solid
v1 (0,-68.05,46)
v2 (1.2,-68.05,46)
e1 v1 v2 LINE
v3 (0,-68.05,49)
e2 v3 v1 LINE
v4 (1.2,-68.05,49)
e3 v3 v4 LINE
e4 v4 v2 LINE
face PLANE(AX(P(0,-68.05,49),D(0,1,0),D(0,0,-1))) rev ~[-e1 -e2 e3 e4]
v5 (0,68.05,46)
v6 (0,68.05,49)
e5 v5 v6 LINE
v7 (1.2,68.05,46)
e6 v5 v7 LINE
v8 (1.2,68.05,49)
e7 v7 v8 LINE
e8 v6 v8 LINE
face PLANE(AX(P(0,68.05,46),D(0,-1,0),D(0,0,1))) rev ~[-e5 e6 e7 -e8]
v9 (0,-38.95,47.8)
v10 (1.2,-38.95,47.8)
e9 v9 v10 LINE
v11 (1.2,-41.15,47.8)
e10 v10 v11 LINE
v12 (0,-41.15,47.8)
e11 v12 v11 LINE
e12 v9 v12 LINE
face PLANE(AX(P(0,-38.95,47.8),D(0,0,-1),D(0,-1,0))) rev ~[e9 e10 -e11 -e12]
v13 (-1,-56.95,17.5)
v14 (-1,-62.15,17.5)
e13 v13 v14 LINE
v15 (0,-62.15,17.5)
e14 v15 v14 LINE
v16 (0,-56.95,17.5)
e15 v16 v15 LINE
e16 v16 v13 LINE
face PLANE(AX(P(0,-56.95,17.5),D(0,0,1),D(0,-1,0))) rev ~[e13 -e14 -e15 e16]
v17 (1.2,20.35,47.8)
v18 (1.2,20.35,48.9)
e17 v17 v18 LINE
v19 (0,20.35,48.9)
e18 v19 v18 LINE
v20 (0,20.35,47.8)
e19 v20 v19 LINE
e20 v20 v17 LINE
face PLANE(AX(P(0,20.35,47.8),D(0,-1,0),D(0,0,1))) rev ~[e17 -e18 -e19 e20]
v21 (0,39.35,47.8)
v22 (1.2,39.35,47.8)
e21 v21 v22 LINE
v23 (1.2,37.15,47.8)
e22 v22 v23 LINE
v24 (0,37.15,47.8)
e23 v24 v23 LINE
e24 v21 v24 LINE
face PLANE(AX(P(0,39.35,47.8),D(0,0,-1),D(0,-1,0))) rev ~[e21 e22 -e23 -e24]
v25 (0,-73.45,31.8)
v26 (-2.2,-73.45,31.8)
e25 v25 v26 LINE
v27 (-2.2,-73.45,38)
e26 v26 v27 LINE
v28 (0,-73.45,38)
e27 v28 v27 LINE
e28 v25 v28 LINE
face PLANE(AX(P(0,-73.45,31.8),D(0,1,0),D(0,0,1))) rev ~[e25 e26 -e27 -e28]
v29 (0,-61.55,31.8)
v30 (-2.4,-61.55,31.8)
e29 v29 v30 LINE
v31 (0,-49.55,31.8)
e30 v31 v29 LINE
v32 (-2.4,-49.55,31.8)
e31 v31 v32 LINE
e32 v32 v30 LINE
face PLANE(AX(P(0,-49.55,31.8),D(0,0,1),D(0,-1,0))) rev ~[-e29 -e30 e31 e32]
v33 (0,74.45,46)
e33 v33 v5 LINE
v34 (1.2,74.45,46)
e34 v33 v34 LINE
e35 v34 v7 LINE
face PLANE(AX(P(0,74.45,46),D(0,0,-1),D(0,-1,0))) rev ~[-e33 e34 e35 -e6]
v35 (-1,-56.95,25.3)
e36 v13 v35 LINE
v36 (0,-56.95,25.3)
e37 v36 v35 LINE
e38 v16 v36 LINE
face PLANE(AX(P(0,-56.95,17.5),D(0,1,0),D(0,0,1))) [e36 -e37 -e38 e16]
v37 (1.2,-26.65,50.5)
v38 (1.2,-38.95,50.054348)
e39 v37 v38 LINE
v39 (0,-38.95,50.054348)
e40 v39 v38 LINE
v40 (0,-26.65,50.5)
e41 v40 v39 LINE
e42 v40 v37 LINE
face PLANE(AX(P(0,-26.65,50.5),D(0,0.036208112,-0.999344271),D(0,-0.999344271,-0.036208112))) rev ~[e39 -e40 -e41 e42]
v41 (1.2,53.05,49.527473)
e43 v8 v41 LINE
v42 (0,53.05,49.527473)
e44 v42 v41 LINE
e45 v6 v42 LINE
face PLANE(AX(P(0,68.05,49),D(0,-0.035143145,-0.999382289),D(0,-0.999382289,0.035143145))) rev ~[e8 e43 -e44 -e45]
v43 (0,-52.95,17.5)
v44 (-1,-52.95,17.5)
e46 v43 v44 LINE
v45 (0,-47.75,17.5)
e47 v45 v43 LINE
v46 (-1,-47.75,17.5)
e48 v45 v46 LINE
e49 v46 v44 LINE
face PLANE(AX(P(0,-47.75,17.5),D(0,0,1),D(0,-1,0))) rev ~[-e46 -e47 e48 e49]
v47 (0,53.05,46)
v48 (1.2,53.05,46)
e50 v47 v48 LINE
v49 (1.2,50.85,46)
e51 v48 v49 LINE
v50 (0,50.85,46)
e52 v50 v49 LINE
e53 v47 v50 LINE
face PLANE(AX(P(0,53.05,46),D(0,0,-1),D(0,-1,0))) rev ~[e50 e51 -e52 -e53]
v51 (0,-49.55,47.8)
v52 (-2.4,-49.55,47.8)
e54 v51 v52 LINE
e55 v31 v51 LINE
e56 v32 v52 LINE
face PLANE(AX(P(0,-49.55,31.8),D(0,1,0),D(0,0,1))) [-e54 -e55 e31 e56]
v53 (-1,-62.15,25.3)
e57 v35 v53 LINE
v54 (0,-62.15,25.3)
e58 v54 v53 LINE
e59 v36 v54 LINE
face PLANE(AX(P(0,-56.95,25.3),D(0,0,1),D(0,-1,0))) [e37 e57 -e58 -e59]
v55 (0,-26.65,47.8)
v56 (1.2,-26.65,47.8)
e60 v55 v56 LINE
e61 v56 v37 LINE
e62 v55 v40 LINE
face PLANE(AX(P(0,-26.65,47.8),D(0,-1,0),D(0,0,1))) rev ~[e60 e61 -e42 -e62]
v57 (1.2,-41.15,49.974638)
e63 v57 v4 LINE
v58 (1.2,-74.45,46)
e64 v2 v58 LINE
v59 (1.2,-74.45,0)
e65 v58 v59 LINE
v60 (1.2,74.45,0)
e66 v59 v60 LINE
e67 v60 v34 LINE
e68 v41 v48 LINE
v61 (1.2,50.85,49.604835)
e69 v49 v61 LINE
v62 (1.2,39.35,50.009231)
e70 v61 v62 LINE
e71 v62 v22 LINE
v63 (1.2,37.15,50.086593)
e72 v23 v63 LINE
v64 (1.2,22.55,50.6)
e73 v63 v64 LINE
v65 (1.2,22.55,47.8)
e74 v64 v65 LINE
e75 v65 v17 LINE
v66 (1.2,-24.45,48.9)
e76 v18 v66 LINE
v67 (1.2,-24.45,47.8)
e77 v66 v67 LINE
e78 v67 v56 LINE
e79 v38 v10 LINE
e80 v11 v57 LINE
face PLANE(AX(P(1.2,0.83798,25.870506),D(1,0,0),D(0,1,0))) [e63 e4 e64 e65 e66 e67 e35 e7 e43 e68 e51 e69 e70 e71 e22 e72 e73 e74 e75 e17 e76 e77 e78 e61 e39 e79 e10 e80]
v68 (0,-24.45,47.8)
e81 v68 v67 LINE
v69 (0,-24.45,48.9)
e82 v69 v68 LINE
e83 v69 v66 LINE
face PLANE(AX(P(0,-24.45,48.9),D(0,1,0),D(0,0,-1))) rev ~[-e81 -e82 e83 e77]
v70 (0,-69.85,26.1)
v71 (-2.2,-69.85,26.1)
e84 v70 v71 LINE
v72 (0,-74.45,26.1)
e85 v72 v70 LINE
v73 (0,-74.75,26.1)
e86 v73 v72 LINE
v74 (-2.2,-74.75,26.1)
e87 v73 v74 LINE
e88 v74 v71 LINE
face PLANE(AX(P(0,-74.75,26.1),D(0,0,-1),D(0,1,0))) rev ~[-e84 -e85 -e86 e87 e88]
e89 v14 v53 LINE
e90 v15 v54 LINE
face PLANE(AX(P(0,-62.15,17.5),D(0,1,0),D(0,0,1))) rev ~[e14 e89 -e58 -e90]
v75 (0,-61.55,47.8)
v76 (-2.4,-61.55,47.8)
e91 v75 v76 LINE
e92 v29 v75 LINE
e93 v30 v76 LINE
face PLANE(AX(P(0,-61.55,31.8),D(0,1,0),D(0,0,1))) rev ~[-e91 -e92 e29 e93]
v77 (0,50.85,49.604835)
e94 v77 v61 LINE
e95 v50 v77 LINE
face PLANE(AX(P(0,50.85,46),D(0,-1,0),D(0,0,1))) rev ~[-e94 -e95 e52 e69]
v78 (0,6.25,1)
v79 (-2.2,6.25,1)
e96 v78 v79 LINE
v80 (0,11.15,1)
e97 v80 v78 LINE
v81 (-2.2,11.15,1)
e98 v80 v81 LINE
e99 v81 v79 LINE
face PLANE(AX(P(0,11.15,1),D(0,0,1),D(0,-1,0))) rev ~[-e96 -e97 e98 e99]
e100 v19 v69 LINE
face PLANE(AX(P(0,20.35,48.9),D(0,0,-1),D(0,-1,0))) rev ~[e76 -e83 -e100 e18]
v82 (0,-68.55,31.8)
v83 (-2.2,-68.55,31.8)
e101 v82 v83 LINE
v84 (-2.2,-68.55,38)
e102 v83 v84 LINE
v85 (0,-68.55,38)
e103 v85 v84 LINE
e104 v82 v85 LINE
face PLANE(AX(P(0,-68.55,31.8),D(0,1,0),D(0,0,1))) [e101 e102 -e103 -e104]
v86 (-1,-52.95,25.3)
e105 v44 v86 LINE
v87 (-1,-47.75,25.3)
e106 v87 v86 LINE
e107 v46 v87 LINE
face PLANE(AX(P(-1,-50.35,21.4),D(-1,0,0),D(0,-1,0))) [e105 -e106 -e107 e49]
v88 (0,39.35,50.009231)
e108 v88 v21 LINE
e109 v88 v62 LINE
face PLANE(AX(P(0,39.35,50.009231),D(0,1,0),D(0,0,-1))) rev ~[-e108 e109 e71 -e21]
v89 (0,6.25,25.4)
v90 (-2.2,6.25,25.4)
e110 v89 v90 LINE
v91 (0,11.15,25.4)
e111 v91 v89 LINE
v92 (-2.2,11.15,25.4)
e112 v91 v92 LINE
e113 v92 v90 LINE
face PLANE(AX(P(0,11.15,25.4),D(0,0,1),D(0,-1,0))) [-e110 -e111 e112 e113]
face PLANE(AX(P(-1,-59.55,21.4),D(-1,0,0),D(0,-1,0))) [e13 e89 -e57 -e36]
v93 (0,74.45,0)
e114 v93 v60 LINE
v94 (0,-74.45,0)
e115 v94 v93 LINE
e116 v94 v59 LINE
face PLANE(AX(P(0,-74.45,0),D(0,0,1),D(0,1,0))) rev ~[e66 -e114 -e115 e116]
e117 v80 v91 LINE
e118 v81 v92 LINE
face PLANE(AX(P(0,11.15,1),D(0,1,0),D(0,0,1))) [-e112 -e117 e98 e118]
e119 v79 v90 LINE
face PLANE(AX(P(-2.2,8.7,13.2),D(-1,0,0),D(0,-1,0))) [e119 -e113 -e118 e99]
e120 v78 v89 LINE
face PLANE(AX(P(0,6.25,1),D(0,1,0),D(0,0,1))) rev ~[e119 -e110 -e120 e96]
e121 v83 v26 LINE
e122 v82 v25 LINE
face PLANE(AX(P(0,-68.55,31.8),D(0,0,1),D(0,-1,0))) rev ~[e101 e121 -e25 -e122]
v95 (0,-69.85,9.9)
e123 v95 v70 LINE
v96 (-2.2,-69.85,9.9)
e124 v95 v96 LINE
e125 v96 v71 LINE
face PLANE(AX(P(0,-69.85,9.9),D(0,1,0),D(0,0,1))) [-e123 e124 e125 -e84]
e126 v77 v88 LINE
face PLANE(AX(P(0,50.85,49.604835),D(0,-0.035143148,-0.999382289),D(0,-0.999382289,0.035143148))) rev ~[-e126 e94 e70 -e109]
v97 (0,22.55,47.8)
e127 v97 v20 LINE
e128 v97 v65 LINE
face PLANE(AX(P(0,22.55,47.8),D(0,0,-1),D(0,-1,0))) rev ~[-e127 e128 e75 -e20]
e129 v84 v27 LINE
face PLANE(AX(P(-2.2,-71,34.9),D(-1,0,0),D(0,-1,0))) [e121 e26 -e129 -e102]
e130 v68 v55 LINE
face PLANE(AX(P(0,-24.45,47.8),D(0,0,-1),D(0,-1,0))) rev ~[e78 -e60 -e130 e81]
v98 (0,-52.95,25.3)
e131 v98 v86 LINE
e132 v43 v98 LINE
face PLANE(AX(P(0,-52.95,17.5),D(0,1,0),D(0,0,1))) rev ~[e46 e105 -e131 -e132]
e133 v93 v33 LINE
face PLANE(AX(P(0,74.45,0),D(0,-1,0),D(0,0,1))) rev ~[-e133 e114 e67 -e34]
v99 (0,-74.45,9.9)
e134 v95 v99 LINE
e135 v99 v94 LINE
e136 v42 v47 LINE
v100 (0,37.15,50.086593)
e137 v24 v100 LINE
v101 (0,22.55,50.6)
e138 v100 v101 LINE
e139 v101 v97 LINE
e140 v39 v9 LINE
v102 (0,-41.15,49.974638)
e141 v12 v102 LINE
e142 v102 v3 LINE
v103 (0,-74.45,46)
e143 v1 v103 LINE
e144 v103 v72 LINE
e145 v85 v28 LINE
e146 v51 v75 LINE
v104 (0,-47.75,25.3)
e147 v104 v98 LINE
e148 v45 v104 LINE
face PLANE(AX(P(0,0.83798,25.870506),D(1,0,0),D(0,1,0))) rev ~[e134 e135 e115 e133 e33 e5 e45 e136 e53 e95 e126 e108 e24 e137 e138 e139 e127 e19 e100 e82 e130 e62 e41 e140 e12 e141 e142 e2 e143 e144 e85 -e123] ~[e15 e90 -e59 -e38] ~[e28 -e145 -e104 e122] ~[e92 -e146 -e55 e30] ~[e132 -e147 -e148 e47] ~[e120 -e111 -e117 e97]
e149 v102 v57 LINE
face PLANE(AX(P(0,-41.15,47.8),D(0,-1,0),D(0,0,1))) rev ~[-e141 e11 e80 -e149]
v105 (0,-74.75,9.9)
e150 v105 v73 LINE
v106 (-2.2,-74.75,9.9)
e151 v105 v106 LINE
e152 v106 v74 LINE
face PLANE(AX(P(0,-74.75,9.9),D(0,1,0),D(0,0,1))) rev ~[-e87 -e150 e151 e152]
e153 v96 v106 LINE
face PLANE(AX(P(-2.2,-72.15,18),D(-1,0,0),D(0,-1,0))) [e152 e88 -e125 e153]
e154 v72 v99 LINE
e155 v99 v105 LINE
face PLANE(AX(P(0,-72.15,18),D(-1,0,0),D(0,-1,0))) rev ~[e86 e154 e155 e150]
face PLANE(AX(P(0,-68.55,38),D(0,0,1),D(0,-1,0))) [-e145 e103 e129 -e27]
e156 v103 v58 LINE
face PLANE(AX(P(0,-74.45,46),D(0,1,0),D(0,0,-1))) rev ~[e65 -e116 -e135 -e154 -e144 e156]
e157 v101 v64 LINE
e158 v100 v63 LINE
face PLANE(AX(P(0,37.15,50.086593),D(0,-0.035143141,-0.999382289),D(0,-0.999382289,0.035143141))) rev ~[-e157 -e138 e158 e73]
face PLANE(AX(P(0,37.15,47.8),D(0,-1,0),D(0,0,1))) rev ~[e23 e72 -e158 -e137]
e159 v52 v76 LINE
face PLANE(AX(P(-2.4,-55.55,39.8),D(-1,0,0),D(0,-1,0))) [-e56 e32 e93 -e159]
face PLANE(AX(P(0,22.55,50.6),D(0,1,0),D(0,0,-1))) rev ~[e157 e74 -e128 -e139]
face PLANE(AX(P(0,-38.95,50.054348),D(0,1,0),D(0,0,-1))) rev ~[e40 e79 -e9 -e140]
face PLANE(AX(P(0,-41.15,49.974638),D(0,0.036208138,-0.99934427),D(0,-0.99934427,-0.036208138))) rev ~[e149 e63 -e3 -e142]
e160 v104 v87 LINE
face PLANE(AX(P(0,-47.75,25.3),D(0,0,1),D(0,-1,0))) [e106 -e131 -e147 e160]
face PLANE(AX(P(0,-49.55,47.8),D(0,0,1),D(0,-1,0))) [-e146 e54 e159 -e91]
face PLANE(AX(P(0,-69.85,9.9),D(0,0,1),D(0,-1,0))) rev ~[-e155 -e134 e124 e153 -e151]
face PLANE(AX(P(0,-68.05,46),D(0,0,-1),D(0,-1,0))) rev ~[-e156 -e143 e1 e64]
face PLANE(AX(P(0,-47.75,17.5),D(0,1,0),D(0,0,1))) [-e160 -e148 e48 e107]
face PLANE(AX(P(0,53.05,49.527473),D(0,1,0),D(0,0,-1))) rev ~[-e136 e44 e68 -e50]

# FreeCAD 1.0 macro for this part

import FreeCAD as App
import Part
import Sketcher
from FreeCAD import Vector


def add_polygon(sketch, points):
    """Adds a closed chain of lines whose ends are joined by coincident constraints."""
    first, n = sketch.GeometryCount, len(points)
    for a, b in zip(points, points[1:] + points[:1]):
        sketch.addGeometry(Part.LineSegment(App.Vector(*a, 0), App.Vector(*b, 0)), False)
    for i in range(n):
        sketch.addConstraint(Sketcher.Constraint("Coincident", first + i, 2, first + (i + 1) % n, 1))

doc = App.newDocument("Part")
body = doc.addObject("PartDesign::Body", "Body")

# Sketch on YZ plane
sketch1 = doc.addObject("Sketcher::SketchObject", "Sketch")
body.addObject(sketch1)
sketch1.AttachmentSupport = (doc.YZ_Plane, [""])
sketch1.MapMode = "FlatFace"
add_polygon(sketch1, [(74.5, 0), (74.5, 46), (68, 46), (68, 49), (53, 49.5), (53, 46), (50.9, 46), (50.9, 49.6), (39.4, 50), (39.4, 47.8), (37.1, 47.8), (37.1, 50.1), (22.6, 50.6), (22.6, 47.8), (20.4, 47.8), (20.4, 48.9), (-24.4, 48.9), (-24.4, 47.8), (-26.6, 47.8), (-26.6, 50.5), (-39, 50.1), (-39, 47.8), (-41.1, 47.8), (-41.1, 50), (-68, 49), (-68, 46), (-74.5, 46), (-74.5, 0)])  # lines 0-27
sketch1.addConstraint([
    Sketcher.Constraint("Vertical", 0),
    Sketcher.Constraint("Horizontal", 1),
    Sketcher.Constraint("Vertical", 2),
    Sketcher.Constraint("Vertical", 4),
    Sketcher.Constraint("Horizontal", 5),
    Sketcher.Constraint("Vertical", 6),
    Sketcher.Constraint("Vertical", 8),
    Sketcher.Constraint("Horizontal", 9),
    Sketcher.Constraint("Vertical", 10),
    Sketcher.Constraint("Vertical", 12),
    Sketcher.Constraint("Horizontal", 13),
    Sketcher.Constraint("Vertical", 14),
    Sketcher.Constraint("Horizontal", 15),
    Sketcher.Constraint("Vertical", 16),
    Sketcher.Constraint("Horizontal", 17),
    Sketcher.Constraint("Vertical", 18),
    Sketcher.Constraint("Vertical", 20),
    Sketcher.Constraint("Horizontal", 21),
    Sketcher.Constraint("Vertical", 22),
    Sketcher.Constraint("Vertical", 24),
    Sketcher.Constraint("Horizontal", 25),
    Sketcher.Constraint("Vertical", 26),
    Sketcher.Constraint("Horizontal", 27),
    Sketcher.Constraint("Symmetric", 26, 2, 27, 2, -1, 1),
    Sketcher.Constraint("Symmetric", 2, 2, 23, 2, -2),
    Sketcher.Constraint("Parallel", 3, 7),
    Sketcher.Constraint("Parallel", 7, 11),
    Sketcher.Constraint("Parallel", 19, 23),
    Sketcher.Constraint("Horizontal", 1, 2, 4, 2),
    Sketcher.Constraint("Horizontal", 9, 2, 12, 2),
    Sketcher.Constraint("Horizontal", 13, 2, 16, 2),
    Sketcher.Constraint("Horizontal", 17, 2, 20, 2),
    Sketcher.Constraint("Horizontal", 5, 2, 24, 2),
    Sketcher.Constraint("Equal", 5, 9),
    Sketcher.Constraint("Equal", 9, 13),
    Sketcher.Constraint("Equal", 13, 17),
    Sketcher.Constraint("Equal", 17, 21),
    Sketcher.Constraint("DistanceY", 0, 1, 0, 2, 46.0),
    Sketcher.Constraint("DistanceY", 2, 1, 2, 2, 3.0),
    Sketcher.Constraint("DistanceX", 1, 2, 1, 1, 6.4),
    Sketcher.Constraint("DistanceX", 5, 2, 5, 1, 2.2),
    Sketcher.Constraint("DistanceX", 15, 2, 15, 1, 44.8),
    Sketcher.Constraint("DistanceX", 27, 1, 27, 2, 148.9),
    Sketcher.Constraint("DistanceY", 12, 2, 12, 1, 2.8),
    Sketcher.Constraint("DistanceY", 14, 1, 14, 2, 1.1),
    Sketcher.Constraint("DistanceY", 18, 1, 18, 2, 2.7),
    Sketcher.Constraint("DistanceX", 3, 2, 2, 2, 15.0),
    Sketcher.Constraint("DistanceX", 13, 2, 8, 2, 19.0),
    Sketcher.Constraint("DistanceY", -1, 1, 8, 2, 47.8),
    Sketcher.Constraint("DistanceX", 7, 2, 6, 2, 11.5),
    Sketcher.Constraint("DistanceX", 19, 2, 18, 2, 12.3),
    Sketcher.Constraint("DistanceY", 8, 2, 8, 1, 2.209231),
    Sketcher.Constraint("DistanceY", 20, 2, 20, 1, 2.254348),
    Sketcher.Constraint("Distance", 3, 15.009271),
])
pad1 = doc.addObject("PartDesign::Pad", "Pad")
body.addObject(pad1)
pad1.Profile = sketch1
pad1.Length = 1.2

# Sketch on YZ plane
sketch2 = doc.addObject("Sketcher::SketchObject", "Sketch001")
body.addObject(sketch2)
sketch2.AttachmentSupport = (doc.YZ_Plane, [""])
sketch2.MapMode = "FlatFace"
add_polygon(sketch2, [(-68.5, 38), (-68.5, 31.8), (-73.5, 31.8), (-73.5, 38)])  # lines 0-3
add_polygon(sketch2, [(-69.8, 26.1), (-69.8, 9.9), (-74.8, 9.9), (-74.8, 26.1)])  # lines 4-7
add_polygon(sketch2, [(11.2, 25.4), (11.2, 1), (6.2, 1), (6.2, 25.4)])  # lines 8-11
sketch2.addConstraint([
    Sketcher.Constraint("Vertical", 0),
    Sketcher.Constraint("Horizontal", 1),
    Sketcher.Constraint("Vertical", 2),
    Sketcher.Constraint("Horizontal", 3),
    Sketcher.Constraint("Vertical", 4),
    Sketcher.Constraint("Horizontal", 5),
    Sketcher.Constraint("Vertical", 6),
    Sketcher.Constraint("Horizontal", 7),
    Sketcher.Constraint("Vertical", 8),
    Sketcher.Constraint("Horizontal", 9),
    Sketcher.Constraint("Vertical", 10),
    Sketcher.Constraint("Horizontal", 11),
    Sketcher.Constraint("Equal", 3, 5),
    Sketcher.Constraint("Equal", 7, 9),
    Sketcher.Constraint("DistanceX", 1, 2, 1, 1, 4.9),
    Sketcher.Constraint("DistanceY", 0, 2, 0, 1, 6.2),
    Sketcher.Constraint("DistanceY", 4, 2, 4, 1, 16.2),
    Sketcher.Constraint("DistanceY", 8, 2, 8, 1, 24.4),
    Sketcher.Constraint("DistanceY", -1, 1, 2, 2, 38.0),
    Sketcher.Constraint("DistanceY", -1, 1, 8, 2, 1.0),
    Sketcher.Constraint("DistanceX", 4, 2, 8, 2, 81.0),
    Sketcher.Constraint("DistanceY", -1, 1, 4, 2, 9.9),
    Sketcher.Constraint("DistanceX", 4, 2, 0, 2, 1.3),
    Sketcher.Constraint("DistanceX", 0, 2, -1, 1, 68.55),
])
pad2 = doc.addObject("PartDesign::Pad", "Pad001")
body.addObject(pad2)
pad2.Profile = sketch2
pad2.Length = 2.2
pad2.Reversed = True

# Sketch on YZ plane
sketch3 = doc.addObject("Sketcher::SketchObject", "Sketch002")
body.addObject(sketch3)
sketch3.AttachmentSupport = (doc.YZ_Plane, [""])
sketch3.MapMode = "FlatFace"
add_polygon(sketch3, [(-50, 48), (-50, 32), (-62, 32), (-62, 48)])  # lines 0-3
sketch3.addConstraint([
    Sketcher.Constraint("Vertical", 0),
    Sketcher.Constraint("Horizontal", 1),
    Sketcher.Constraint("Vertical", 2),
    Sketcher.Constraint("Horizontal", 3),
    Sketcher.Constraint("DistanceX", 1, 2, 1, 1, 12.0),
    Sketcher.Constraint("DistanceY", 0, 2, 0, 1, 16.0),
    Sketcher.Constraint("DistanceY", -1, 1, 0, 2, 31.8),
    Sketcher.Constraint("DistanceX", 0, 2, -1, 1, 49.55),
])
pad3 = doc.addObject("PartDesign::Pad", "Pad002")
body.addObject(pad3)
pad3.Profile = sketch3
pad3.Length = 2.4
pad3.Reversed = True

# Sketch on YZ plane
sketch4 = doc.addObject("Sketcher::SketchObject", "Sketch003")
body.addObject(sketch4)
sketch4.AttachmentSupport = (doc.YZ_Plane, [""])
sketch4.MapMode = "FlatFace"
add_polygon(sketch4, [(-48, 25), (-48, 18), (-53, 18), (-53, 25)])  # lines 0-3
add_polygon(sketch4, [(-57, 25), (-57, 18), (-62, 18), (-62, 25)])  # lines 4-7
sketch4.addConstraint([
    Sketcher.Constraint("Vertical", 0),
    Sketcher.Constraint("Horizontal", 1),
    Sketcher.Constraint("Vertical", 2),
    Sketcher.Constraint("Horizontal", 3),
    Sketcher.Constraint("Vertical", 4),
    Sketcher.Constraint("Horizontal", 5),
    Sketcher.Constraint("Vertical", 6),
    Sketcher.Constraint("Horizontal", 7),
    Sketcher.Constraint("Horizontal", 1, 2, 4, 2),
    Sketcher.Constraint("Horizontal", 3, 2, 6, 2),
    Sketcher.Constraint("Equal", 3, 5),
    Sketcher.Constraint("DistanceX", 1, 2, 1, 1, 5.2),
    Sketcher.Constraint("DistanceY", 0, 2, 0, 1, 7.8),
    Sketcher.Constraint("DistanceX", 4, 2, 1, 2, 4.0),
    Sketcher.Constraint("DistanceY", -1, 1, 0, 2, 17.5),
    Sketcher.Constraint("DistanceX", 0, 2, -1, 1, 47.75),
])
pad4 = doc.addObject("PartDesign::Pad", "Pad003")
body.addObject(pad4)
pad4.Profile = sketch4
pad4.Length = 1
pad4.Reversed = True

doc.recompute()
